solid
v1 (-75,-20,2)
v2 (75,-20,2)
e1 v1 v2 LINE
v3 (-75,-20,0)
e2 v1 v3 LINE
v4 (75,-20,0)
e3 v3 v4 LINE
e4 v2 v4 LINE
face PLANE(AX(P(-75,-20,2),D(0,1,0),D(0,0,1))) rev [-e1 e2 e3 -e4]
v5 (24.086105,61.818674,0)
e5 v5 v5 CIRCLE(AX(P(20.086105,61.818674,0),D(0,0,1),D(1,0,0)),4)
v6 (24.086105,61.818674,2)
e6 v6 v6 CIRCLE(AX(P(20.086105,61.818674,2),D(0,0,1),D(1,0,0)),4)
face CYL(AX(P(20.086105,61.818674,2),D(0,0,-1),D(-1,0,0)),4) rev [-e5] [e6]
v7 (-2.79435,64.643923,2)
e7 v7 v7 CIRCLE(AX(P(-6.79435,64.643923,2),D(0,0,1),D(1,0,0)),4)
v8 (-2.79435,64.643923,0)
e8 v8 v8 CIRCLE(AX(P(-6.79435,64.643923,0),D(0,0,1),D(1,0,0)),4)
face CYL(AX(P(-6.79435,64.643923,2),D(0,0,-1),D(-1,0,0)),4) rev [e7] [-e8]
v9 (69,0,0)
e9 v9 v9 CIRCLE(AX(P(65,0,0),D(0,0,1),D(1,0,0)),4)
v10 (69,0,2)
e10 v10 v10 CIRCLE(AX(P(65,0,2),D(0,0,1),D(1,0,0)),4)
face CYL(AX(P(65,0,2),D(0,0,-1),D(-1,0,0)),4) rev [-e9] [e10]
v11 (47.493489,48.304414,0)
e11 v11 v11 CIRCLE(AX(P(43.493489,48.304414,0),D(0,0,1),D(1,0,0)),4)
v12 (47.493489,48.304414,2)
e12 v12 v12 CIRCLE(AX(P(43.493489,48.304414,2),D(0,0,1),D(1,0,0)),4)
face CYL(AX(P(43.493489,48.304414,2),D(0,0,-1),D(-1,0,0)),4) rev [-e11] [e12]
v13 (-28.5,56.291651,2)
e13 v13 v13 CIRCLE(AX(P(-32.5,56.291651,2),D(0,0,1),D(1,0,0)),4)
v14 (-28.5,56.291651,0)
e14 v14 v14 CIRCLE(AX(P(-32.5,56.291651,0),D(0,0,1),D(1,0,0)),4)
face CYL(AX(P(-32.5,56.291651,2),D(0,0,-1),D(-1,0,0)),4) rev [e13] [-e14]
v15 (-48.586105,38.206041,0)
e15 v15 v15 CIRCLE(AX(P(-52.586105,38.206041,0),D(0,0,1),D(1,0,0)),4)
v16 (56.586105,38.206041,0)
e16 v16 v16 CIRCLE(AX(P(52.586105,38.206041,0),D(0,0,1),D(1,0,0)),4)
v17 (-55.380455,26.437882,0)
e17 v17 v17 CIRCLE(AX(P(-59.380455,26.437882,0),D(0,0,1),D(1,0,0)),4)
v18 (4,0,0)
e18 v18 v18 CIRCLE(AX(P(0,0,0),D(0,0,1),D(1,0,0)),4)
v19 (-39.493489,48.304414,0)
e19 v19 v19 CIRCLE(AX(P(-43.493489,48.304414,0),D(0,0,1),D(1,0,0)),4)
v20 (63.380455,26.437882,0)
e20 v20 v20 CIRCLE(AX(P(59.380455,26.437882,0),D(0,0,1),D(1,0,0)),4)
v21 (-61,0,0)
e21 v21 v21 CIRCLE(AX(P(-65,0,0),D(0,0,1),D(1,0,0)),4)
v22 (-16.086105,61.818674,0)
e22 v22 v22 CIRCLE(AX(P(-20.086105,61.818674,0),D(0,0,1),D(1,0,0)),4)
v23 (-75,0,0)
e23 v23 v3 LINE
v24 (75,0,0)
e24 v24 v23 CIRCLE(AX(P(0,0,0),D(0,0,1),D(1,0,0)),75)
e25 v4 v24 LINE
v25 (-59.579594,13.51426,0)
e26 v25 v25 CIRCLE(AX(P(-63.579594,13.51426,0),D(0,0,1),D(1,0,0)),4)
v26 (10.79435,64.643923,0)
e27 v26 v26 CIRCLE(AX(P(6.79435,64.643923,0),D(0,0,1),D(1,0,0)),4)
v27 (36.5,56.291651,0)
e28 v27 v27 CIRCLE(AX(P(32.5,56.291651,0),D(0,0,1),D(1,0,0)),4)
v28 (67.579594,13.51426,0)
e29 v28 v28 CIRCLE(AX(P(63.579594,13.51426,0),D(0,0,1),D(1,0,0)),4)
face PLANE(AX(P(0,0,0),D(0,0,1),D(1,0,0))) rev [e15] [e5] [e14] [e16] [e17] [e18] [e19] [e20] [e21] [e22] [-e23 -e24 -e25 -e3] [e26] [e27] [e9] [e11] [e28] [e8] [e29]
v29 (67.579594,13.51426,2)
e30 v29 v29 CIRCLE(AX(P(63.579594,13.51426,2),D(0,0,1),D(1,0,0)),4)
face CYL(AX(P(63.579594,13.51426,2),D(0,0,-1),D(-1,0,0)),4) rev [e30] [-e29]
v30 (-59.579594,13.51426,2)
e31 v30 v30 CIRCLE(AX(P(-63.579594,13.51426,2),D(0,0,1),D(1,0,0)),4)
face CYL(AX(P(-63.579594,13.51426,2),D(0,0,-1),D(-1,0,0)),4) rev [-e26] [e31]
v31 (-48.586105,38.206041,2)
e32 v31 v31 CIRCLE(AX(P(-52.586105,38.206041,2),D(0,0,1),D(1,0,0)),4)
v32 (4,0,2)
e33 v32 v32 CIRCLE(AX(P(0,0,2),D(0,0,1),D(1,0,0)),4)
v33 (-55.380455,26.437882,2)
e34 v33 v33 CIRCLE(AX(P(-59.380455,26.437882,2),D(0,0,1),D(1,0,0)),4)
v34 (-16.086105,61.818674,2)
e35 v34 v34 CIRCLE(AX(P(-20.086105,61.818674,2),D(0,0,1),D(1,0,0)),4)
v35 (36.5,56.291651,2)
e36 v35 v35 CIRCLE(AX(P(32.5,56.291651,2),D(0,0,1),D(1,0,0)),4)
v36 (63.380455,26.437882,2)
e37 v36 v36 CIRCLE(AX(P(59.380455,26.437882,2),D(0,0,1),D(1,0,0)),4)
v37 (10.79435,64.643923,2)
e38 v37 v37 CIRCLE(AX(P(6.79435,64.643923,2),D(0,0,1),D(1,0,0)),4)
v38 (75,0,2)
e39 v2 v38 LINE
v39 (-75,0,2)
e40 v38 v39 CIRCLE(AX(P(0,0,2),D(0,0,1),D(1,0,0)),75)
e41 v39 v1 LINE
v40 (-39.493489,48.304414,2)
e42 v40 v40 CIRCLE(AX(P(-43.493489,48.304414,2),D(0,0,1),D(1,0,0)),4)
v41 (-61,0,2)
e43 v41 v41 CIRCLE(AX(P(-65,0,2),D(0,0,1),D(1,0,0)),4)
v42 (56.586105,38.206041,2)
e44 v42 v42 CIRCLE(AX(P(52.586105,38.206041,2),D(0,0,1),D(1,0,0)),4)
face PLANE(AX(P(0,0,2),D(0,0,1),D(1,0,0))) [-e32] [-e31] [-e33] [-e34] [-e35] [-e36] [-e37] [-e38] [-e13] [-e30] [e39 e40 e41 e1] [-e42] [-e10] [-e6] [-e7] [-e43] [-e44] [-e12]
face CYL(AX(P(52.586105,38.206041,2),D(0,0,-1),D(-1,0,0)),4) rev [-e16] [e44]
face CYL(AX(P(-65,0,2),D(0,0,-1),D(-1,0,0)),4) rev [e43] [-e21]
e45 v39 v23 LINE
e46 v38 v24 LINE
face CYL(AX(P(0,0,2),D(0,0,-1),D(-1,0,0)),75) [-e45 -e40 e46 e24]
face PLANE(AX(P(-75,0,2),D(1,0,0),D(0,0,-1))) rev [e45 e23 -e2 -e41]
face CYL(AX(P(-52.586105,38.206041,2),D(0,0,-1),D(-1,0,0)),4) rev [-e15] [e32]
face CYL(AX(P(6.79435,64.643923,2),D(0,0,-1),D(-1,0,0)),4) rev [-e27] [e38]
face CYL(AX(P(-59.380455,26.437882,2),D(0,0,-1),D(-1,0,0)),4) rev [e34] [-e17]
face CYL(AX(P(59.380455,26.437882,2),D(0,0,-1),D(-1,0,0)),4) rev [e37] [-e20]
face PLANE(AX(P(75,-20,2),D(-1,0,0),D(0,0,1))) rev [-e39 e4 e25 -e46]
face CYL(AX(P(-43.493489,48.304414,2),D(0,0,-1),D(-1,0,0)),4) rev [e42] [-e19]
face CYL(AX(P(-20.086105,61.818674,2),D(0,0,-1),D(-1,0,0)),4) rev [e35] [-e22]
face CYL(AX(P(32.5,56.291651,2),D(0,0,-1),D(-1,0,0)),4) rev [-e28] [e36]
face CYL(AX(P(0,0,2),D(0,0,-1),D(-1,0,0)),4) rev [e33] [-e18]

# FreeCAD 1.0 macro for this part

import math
import FreeCAD as App
import Part
import Sketcher
from FreeCAD import Vector
Q = App.Units.Quantity

doc = App.newDocument("Part")
params = doc.addObject("Spreadsheet::Sheet", "Params")
for row, (alias, value) in enumerate([
    ("sketch1_diameter", "8 mm"),
    ("sketch1_radius", "75 mm"),
    ("sketch1_height", "20 mm"),
    ("pad1_length", "2 mm"),
], start=1):
    params.set(f"A{row}", alias)
    params.set(f"B{row}", "=" + value)
    params.setAlias(f"B{row}", alias)

body = doc.addObject("PartDesign::Body", "Body")

# Sketch on XY plane
sketch1 = body.newObject("Sketcher::SketchObject", "Sketch")
sketch1.AttachmentSupport = (doc.getObject("XY_Plane"), [""])
sketch1.MapMode = "FlatFace"
sketch1.addGeometry(Part.LineSegment(Vector(-75, 0, 0), Vector(-75, -20, 0)), False)
sketch1.addGeometry(Part.LineSegment(Vector(-75, -20, 0), Vector(75, -20, 0)), False)
sketch1.addGeometry(Part.LineSegment(Vector(75, -20, 0), Vector(75, 0, 0)), False)
sketch1.addGeometry(Part.ArcOfCircle(Part.Circle(Vector(0, 0, 0), Vector(0, 0, 1), 75), math.radians(0), math.radians(180)), False)
sketch1.addGeometry(Part.Circle(Vector(-65, 0, 0), Vector(0, 0, 1), 4), False)
sketch1.addGeometry(Part.Circle(Vector(-63.579594, 13.51426, 0), Vector(0, 0, 1), 4), False)
sketch1.addGeometry(Part.Circle(Vector(-59.380455, 26.437882, 0), Vector(0, 0, 1), 4), False)
sketch1.addGeometry(Part.Circle(Vector(0, 0, 0), Vector(0, 0, 1), 4), False)
sketch1.addGeometry(Part.Circle(Vector(65, 0, 0), Vector(0, 0, 1), 4), False)
sketch1.addGeometry(Part.Circle(Vector(63.579594, 13.51426, 0), Vector(0, 0, 1), 4), False)
sketch1.addGeometry(Part.Circle(Vector(59.380455, 26.437882, 0), Vector(0, 0, 1), 4), False)
sketch1.addGeometry(Part.Circle(Vector(-52.586105, 38.206041, 0), Vector(0, 0, 1), 4), False)
sketch1.addGeometry(Part.Circle(Vector(-43.493489, 48.304414, 0), Vector(0, 0, 1), 4), False)
sketch1.addGeometry(Part.Circle(Vector(-32.5, 56.291651, 0), Vector(0, 0, 1), 4), False)
sketch1.addGeometry(Part.Circle(Vector(-20.086105, 61.818674, 0), Vector(0, 0, 1), 4), False)
sketch1.addGeometry(Part.Circle(Vector(-6.79435, 64.643923, 0), Vector(0, 0, 1), 4), False)
sketch1.addGeometry(Part.Circle(Vector(52.586105, 38.206041, 0), Vector(0, 0, 1), 4), False)
sketch1.addGeometry(Part.Circle(Vector(43.493489, 48.304414, 0), Vector(0, 0, 1), 4), False)
sketch1.addGeometry(Part.Circle(Vector(32.5, 56.291651, 0), Vector(0, 0, 1), 4), False)
sketch1.addGeometry(Part.Circle(Vector(6.79435, 64.643923, 0), Vector(0, 0, 1), 4), False)
sketch1.addGeometry(Part.Circle(Vector(20.086105, 61.818674, 0), Vector(0, 0, 1), 4), False)
sketch1.addConstraint(Sketcher.Constraint("Coincident", 0, 2, 1, 1))
sketch1.addConstraint(Sketcher.Constraint("Coincident", 1, 2, 2, 1))
sketch1.addConstraint(Sketcher.Constraint("Tangent", 2, 2, 3, 1))
sketch1.addConstraint(Sketcher.Constraint("Tangent", 3, 2, 0, 1))
sketch1.addConstraint(Sketcher.Constraint("Vertical", 0))
sketch1.addConstraint(Sketcher.Constraint("Horizontal", 1))
sketch1.addConstraint(Sketcher.Constraint("Vertical", 2))
sketch1.addConstraint(Sketcher.Constraint("Coincident", 3, 3, -1, 1))
sketch1.addConstraint(Sketcher.Constraint("Coincident", 7, 3, -1, 1))
sketch1.addConstraint(Sketcher.Constraint("Equal", 4, 5))
sketch1.addConstraint(Sketcher.Constraint("Equal", 5, 6))
sketch1.addConstraint(Sketcher.Constraint("Equal", 6, 7))
sketch1.addConstraint(Sketcher.Constraint("Equal", 7, 8))
sketch1.addConstraint(Sketcher.Constraint("Equal", 8, 9))
sketch1.addConstraint(Sketcher.Constraint("Equal", 9, 10))
sketch1.addConstraint(Sketcher.Constraint("Equal", 10, 11))
sketch1.addConstraint(Sketcher.Constraint("Equal", 11, 12))
sketch1.addConstraint(Sketcher.Constraint("Equal", 12, 13))
sketch1.addConstraint(Sketcher.Constraint("Equal", 13, 14))
sketch1.addConstraint(Sketcher.Constraint("Equal", 14, 15))
sketch1.addConstraint(Sketcher.Constraint("Equal", 15, 16))
sketch1.addConstraint(Sketcher.Constraint("Equal", 16, 17))
sketch1.addConstraint(Sketcher.Constraint("Equal", 17, 18))
sketch1.addConstraint(Sketcher.Constraint("Equal", 18, 19))
sketch1.addConstraint(Sketcher.Constraint("Equal", 19, 20))
sketch1.addConstraint(Sketcher.Constraint("Symmetric", 4, 3, 8, 3, -1, 1))
sketch1.addConstraint(Sketcher.Constraint("Symmetric", 5, 3, 9, 3, -2))
sketch1.addConstraint(Sketcher.Constraint("Symmetric", 6, 3, 10, 3, -2))
sketch1.addConstraint(Sketcher.Constraint("Symmetric", 11, 3, 16, 3, -2))
sketch1.addConstraint(Sketcher.Constraint("Symmetric", 12, 3, 17, 3, -2))
sketch1.addConstraint(Sketcher.Constraint("Symmetric", 13, 3, 18, 3, -2))
sketch1.addConstraint(Sketcher.Constraint("Symmetric", 15, 3, 19, 3, -2))
sketch1.addConstraint(Sketcher.Constraint("Symmetric", 14, 3, 20, 3, -2))
sketch1.addConstraint(Sketcher.Constraint("PointOnObject", 4, 3, -1))
sketch1.addConstraint(Sketcher.Constraint("Diameter", 4, Q("8 mm")))
sketch1.addConstraint(Sketcher.Constraint("Radius", 3, Q("75 mm")))
sketch1.addConstraint(Sketcher.Constraint("DistanceY", 0, 2, 0, 1, Q("20 mm")))
sketch1.addConstraint(Sketcher.Constraint("DistanceX", 4, 3, -1, 1, Q("65 mm")))
sketch1.addConstraint(Sketcher.Constraint("DistanceX", 13, 3, -1, 1, Q("32.5 mm")))
sketch1.addConstraint(Sketcher.Constraint("DistanceX", 11, 3, 14, 3, Q("32.5 mm")))
sketch1.addConstraint(Sketcher.Constraint("DistanceX", 15, 3, 19, 3, Q("13.5887 mm")))
sketch1.addConstraint(Sketcher.Constraint("DistanceY", -1, 1, 5, 3, Q("13.51426 mm")))
sketch1.addConstraint(Sketcher.Constraint("DistanceY", -1, 1, 6, 3, Q("26.437882 mm")))
sketch1.addConstraint(Sketcher.Constraint("DistanceY", -1, 1, 11, 3, Q("38.206041 mm")))
sketch1.addConstraint(Sketcher.Constraint("DistanceX", 12, 3, -1, 1, Q("43.493489 mm")))
sketch1.addConstraint(Sketcher.Constraint("DistanceY", -1, 1, 13, 3, Q("56.291651 mm")))
sketch1.addConstraint(Sketcher.Constraint("DistanceX", 5, 3, 6, 3, Q("4.199139 mm")))
sketch1.addConstraint(Sketcher.Constraint("DistanceX", 6, 3, 9, 3, Q("122.960049 mm")))
sketch1.addConstraint(Sketcher.Constraint("DistanceX", 6, 3, 11, 3, Q("6.79435 mm")))
sketch1.addConstraint(Sketcher.Constraint("DistanceY", 6, 3, 12, 3, Q("21.866532 mm")))
sketch1.addConstraint(Sketcher.Constraint("DistanceY", 12, 3, 14, 3, Q("13.51426 mm")))
sketch1.addConstraint(Sketcher.Constraint("DistanceY", 14, 3, 15, 3, Q("2.82525 mm")))
sketch1.setExpression("Constraints[34]", "Params.sketch1_diameter")
sketch1.setExpression("Constraints[35]", "Params.sketch1_radius")
sketch1.setExpression("Constraints[36]", "Params.sketch1_height")
pad1 = body.newObject("PartDesign::Pad", "Pad")
pad1.Profile = sketch1
pad1.setExpression("Length", "Params.pad1_length")

doc.recompute()
